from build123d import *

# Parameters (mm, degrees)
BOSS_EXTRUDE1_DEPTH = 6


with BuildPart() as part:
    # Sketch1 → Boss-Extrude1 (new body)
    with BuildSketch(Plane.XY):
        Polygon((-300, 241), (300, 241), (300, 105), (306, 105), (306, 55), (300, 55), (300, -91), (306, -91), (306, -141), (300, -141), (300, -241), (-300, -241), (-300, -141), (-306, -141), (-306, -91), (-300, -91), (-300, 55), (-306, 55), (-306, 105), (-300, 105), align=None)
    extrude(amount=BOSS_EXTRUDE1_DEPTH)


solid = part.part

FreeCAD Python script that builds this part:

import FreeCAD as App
import Part
import Sketcher
from FreeCAD import Vector

doc = App.newDocument("Part")
body = doc.addObject("PartDesign::Body", "Body")

# Sketch on XY plane
sketch1 = body.newObject("Sketcher::SketchObject", "Sketch")
sketch1.AttachmentSupport = (doc.getObject("XY_Plane"), [""])
sketch1.MapMode = "FlatFace"
sketch1.addGeometry([
    Part.LineSegment(Vector(300, 241, 0), Vector(-300, 241, 0)),  # 0
    Part.LineSegment(Vector(-300, 241, 0), Vector(-300, 105, 0)),  # 1
    Part.LineSegment(Vector(-300, 105, 0), Vector(-306, 105, 0)),  # 2
    Part.LineSegment(Vector(-306, 105, 0), Vector(-306, 55, 0)),  # 3
    Part.LineSegment(Vector(-306, 55, 0), Vector(-300, 55, 0)),  # 4
    Part.LineSegment(Vector(-300, 55, 0), Vector(-300, -91, 0)),  # 5
    Part.LineSegment(Vector(-300, -91, 0), Vector(-306, -91, 0)),  # 6
    Part.LineSegment(Vector(-306, -91, 0), Vector(-306, -141, 0)),  # 7
    Part.LineSegment(Vector(-306, -141, 0), Vector(-300, -141, 0)),  # 8
    Part.LineSegment(Vector(-300, -141, 0), Vector(-300, -241, 0)),  # 9
    Part.LineSegment(Vector(-300, -241, 0), Vector(300, -241, 0)),  # 10
    Part.LineSegment(Vector(300, -241, 0), Vector(300, -141, 0)),  # 11
    Part.LineSegment(Vector(300, -141, 0), Vector(306, -141, 0)),  # 12
    Part.LineSegment(Vector(306, -141, 0), Vector(306, -91, 0)),  # 13
    Part.LineSegment(Vector(306, -91, 0), Vector(300, -91, 0)),  # 14
    Part.LineSegment(Vector(300, -91, 0), Vector(300, 55, 0)),  # 15
    Part.LineSegment(Vector(300, 55, 0), Vector(306, 55, 0)),  # 16
    Part.LineSegment(Vector(306, 55, 0), Vector(306, 105, 0)),  # 17
    Part.LineSegment(Vector(306, 105, 0), Vector(300, 105, 0)),  # 18
    Part.LineSegment(Vector(300, 105, 0), Vector(300, 241, 0)),  # 19
], False)
sketch1.addConstraint([
    Sketcher.Constraint("Coincident", 0, 2, 1, 1),
    Sketcher.Constraint("Coincident", 1, 2, 2, 1),
    Sketcher.Constraint("Coincident", 2, 2, 3, 1),
    Sketcher.Constraint("Coincident", 3, 2, 4, 1),
    Sketcher.Constraint("Coincident", 4, 2, 5, 1),
    Sketcher.Constraint("Coincident", 5, 2, 6, 1),
    Sketcher.Constraint("Coincident", 6, 2, 7, 1),
    Sketcher.Constraint("Coincident", 7, 2, 8, 1),
    Sketcher.Constraint("Coincident", 8, 2, 9, 1),
    Sketcher.Constraint("Coincident", 9, 2, 10, 1),
    Sketcher.Constraint("Coincident", 10, 2, 11, 1),
    Sketcher.Constraint("Coincident", 11, 2, 12, 1),
    Sketcher.Constraint("Coincident", 12, 2, 13, 1),
    Sketcher.Constraint("Coincident", 13, 2, 14, 1),
    Sketcher.Constraint("Coincident", 14, 2, 15, 1),
    Sketcher.Constraint("Coincident", 15, 2, 16, 1),
    Sketcher.Constraint("Coincident", 16, 2, 17, 1),
    Sketcher.Constraint("Coincident", 17, 2, 18, 1),
    Sketcher.Constraint("Coincident", 18, 2, 19, 1),
    Sketcher.Constraint("Coincident", 19, 2, 0, 1),
    Sketcher.Constraint("Horizontal", 0),
    Sketcher.Constraint("Vertical", 1),
    Sketcher.Constraint("Horizontal", 2),
    Sketcher.Constraint("Vertical", 3),
    Sketcher.Constraint("Horizontal", 4),
    Sketcher.Constraint("Vertical", 5),
    Sketcher.Constraint("Horizontal", 6),
    Sketcher.Constraint("Vertical", 7),
    Sketcher.Constraint("Horizontal", 8),
    Sketcher.Constraint("Vertical", 9),
    Sketcher.Constraint("Horizontal", 10),
    Sketcher.Constraint("Vertical", 11),
    Sketcher.Constraint("Horizontal", 12),
    Sketcher.Constraint("Vertical", 13),
    Sketcher.Constraint("Horizontal", 14),
    Sketcher.Constraint("Vertical", 15),
    Sketcher.Constraint("Horizontal", 16),
    Sketcher.Constraint("Vertical", 17),
    Sketcher.Constraint("Horizontal", 18),
    Sketcher.Constraint("Vertical", 19),
    Sketcher.Constraint("Symmetric", 0, 2, 10, 2, -1, 1),
    Sketcher.Constraint("Symmetric", 8, 2, 11, 2, -2),
    Sketcher.Constraint("Symmetric", 6, 2, 13, 2, -2),
    Sketcher.Constraint("Symmetric", 4, 2, 15, 2, -2),
    Sketcher.Constraint("Symmetric", 2, 2, 17, 2, -2),
    Sketcher.Constraint("Vertical", 1, 2, 4, 2),
    Sketcher.Constraint("Vertical", 3, 2, 6, 2),
    Sketcher.Constraint("Vertical", 15, 2, 18, 2),
    Sketcher.Constraint("Equal", 3, 7),
    Sketcher.Constraint("DistanceX", 0, 2, 0, 1, 600.0),
    Sketcher.Constraint("DistanceX", 2, 2, 2, 1, 6.0),
    Sketcher.Constraint("DistanceY", 1, 2, 1, 1, 136.0),
    Sketcher.Constraint("DistanceY", 3, 2, 3, 1, 50.0),
    Sketcher.Constraint("DistanceY", 5, 2, 5, 1, 146.0),
    Sketcher.Constraint("DistanceY", 9, 2, 9, 1, 100.0),
])
pad1 = body.newObject("PartDesign::Pad", "Pad")
pad1.Profile = sketch1
pad1.Length = 6

doc.recompute()
